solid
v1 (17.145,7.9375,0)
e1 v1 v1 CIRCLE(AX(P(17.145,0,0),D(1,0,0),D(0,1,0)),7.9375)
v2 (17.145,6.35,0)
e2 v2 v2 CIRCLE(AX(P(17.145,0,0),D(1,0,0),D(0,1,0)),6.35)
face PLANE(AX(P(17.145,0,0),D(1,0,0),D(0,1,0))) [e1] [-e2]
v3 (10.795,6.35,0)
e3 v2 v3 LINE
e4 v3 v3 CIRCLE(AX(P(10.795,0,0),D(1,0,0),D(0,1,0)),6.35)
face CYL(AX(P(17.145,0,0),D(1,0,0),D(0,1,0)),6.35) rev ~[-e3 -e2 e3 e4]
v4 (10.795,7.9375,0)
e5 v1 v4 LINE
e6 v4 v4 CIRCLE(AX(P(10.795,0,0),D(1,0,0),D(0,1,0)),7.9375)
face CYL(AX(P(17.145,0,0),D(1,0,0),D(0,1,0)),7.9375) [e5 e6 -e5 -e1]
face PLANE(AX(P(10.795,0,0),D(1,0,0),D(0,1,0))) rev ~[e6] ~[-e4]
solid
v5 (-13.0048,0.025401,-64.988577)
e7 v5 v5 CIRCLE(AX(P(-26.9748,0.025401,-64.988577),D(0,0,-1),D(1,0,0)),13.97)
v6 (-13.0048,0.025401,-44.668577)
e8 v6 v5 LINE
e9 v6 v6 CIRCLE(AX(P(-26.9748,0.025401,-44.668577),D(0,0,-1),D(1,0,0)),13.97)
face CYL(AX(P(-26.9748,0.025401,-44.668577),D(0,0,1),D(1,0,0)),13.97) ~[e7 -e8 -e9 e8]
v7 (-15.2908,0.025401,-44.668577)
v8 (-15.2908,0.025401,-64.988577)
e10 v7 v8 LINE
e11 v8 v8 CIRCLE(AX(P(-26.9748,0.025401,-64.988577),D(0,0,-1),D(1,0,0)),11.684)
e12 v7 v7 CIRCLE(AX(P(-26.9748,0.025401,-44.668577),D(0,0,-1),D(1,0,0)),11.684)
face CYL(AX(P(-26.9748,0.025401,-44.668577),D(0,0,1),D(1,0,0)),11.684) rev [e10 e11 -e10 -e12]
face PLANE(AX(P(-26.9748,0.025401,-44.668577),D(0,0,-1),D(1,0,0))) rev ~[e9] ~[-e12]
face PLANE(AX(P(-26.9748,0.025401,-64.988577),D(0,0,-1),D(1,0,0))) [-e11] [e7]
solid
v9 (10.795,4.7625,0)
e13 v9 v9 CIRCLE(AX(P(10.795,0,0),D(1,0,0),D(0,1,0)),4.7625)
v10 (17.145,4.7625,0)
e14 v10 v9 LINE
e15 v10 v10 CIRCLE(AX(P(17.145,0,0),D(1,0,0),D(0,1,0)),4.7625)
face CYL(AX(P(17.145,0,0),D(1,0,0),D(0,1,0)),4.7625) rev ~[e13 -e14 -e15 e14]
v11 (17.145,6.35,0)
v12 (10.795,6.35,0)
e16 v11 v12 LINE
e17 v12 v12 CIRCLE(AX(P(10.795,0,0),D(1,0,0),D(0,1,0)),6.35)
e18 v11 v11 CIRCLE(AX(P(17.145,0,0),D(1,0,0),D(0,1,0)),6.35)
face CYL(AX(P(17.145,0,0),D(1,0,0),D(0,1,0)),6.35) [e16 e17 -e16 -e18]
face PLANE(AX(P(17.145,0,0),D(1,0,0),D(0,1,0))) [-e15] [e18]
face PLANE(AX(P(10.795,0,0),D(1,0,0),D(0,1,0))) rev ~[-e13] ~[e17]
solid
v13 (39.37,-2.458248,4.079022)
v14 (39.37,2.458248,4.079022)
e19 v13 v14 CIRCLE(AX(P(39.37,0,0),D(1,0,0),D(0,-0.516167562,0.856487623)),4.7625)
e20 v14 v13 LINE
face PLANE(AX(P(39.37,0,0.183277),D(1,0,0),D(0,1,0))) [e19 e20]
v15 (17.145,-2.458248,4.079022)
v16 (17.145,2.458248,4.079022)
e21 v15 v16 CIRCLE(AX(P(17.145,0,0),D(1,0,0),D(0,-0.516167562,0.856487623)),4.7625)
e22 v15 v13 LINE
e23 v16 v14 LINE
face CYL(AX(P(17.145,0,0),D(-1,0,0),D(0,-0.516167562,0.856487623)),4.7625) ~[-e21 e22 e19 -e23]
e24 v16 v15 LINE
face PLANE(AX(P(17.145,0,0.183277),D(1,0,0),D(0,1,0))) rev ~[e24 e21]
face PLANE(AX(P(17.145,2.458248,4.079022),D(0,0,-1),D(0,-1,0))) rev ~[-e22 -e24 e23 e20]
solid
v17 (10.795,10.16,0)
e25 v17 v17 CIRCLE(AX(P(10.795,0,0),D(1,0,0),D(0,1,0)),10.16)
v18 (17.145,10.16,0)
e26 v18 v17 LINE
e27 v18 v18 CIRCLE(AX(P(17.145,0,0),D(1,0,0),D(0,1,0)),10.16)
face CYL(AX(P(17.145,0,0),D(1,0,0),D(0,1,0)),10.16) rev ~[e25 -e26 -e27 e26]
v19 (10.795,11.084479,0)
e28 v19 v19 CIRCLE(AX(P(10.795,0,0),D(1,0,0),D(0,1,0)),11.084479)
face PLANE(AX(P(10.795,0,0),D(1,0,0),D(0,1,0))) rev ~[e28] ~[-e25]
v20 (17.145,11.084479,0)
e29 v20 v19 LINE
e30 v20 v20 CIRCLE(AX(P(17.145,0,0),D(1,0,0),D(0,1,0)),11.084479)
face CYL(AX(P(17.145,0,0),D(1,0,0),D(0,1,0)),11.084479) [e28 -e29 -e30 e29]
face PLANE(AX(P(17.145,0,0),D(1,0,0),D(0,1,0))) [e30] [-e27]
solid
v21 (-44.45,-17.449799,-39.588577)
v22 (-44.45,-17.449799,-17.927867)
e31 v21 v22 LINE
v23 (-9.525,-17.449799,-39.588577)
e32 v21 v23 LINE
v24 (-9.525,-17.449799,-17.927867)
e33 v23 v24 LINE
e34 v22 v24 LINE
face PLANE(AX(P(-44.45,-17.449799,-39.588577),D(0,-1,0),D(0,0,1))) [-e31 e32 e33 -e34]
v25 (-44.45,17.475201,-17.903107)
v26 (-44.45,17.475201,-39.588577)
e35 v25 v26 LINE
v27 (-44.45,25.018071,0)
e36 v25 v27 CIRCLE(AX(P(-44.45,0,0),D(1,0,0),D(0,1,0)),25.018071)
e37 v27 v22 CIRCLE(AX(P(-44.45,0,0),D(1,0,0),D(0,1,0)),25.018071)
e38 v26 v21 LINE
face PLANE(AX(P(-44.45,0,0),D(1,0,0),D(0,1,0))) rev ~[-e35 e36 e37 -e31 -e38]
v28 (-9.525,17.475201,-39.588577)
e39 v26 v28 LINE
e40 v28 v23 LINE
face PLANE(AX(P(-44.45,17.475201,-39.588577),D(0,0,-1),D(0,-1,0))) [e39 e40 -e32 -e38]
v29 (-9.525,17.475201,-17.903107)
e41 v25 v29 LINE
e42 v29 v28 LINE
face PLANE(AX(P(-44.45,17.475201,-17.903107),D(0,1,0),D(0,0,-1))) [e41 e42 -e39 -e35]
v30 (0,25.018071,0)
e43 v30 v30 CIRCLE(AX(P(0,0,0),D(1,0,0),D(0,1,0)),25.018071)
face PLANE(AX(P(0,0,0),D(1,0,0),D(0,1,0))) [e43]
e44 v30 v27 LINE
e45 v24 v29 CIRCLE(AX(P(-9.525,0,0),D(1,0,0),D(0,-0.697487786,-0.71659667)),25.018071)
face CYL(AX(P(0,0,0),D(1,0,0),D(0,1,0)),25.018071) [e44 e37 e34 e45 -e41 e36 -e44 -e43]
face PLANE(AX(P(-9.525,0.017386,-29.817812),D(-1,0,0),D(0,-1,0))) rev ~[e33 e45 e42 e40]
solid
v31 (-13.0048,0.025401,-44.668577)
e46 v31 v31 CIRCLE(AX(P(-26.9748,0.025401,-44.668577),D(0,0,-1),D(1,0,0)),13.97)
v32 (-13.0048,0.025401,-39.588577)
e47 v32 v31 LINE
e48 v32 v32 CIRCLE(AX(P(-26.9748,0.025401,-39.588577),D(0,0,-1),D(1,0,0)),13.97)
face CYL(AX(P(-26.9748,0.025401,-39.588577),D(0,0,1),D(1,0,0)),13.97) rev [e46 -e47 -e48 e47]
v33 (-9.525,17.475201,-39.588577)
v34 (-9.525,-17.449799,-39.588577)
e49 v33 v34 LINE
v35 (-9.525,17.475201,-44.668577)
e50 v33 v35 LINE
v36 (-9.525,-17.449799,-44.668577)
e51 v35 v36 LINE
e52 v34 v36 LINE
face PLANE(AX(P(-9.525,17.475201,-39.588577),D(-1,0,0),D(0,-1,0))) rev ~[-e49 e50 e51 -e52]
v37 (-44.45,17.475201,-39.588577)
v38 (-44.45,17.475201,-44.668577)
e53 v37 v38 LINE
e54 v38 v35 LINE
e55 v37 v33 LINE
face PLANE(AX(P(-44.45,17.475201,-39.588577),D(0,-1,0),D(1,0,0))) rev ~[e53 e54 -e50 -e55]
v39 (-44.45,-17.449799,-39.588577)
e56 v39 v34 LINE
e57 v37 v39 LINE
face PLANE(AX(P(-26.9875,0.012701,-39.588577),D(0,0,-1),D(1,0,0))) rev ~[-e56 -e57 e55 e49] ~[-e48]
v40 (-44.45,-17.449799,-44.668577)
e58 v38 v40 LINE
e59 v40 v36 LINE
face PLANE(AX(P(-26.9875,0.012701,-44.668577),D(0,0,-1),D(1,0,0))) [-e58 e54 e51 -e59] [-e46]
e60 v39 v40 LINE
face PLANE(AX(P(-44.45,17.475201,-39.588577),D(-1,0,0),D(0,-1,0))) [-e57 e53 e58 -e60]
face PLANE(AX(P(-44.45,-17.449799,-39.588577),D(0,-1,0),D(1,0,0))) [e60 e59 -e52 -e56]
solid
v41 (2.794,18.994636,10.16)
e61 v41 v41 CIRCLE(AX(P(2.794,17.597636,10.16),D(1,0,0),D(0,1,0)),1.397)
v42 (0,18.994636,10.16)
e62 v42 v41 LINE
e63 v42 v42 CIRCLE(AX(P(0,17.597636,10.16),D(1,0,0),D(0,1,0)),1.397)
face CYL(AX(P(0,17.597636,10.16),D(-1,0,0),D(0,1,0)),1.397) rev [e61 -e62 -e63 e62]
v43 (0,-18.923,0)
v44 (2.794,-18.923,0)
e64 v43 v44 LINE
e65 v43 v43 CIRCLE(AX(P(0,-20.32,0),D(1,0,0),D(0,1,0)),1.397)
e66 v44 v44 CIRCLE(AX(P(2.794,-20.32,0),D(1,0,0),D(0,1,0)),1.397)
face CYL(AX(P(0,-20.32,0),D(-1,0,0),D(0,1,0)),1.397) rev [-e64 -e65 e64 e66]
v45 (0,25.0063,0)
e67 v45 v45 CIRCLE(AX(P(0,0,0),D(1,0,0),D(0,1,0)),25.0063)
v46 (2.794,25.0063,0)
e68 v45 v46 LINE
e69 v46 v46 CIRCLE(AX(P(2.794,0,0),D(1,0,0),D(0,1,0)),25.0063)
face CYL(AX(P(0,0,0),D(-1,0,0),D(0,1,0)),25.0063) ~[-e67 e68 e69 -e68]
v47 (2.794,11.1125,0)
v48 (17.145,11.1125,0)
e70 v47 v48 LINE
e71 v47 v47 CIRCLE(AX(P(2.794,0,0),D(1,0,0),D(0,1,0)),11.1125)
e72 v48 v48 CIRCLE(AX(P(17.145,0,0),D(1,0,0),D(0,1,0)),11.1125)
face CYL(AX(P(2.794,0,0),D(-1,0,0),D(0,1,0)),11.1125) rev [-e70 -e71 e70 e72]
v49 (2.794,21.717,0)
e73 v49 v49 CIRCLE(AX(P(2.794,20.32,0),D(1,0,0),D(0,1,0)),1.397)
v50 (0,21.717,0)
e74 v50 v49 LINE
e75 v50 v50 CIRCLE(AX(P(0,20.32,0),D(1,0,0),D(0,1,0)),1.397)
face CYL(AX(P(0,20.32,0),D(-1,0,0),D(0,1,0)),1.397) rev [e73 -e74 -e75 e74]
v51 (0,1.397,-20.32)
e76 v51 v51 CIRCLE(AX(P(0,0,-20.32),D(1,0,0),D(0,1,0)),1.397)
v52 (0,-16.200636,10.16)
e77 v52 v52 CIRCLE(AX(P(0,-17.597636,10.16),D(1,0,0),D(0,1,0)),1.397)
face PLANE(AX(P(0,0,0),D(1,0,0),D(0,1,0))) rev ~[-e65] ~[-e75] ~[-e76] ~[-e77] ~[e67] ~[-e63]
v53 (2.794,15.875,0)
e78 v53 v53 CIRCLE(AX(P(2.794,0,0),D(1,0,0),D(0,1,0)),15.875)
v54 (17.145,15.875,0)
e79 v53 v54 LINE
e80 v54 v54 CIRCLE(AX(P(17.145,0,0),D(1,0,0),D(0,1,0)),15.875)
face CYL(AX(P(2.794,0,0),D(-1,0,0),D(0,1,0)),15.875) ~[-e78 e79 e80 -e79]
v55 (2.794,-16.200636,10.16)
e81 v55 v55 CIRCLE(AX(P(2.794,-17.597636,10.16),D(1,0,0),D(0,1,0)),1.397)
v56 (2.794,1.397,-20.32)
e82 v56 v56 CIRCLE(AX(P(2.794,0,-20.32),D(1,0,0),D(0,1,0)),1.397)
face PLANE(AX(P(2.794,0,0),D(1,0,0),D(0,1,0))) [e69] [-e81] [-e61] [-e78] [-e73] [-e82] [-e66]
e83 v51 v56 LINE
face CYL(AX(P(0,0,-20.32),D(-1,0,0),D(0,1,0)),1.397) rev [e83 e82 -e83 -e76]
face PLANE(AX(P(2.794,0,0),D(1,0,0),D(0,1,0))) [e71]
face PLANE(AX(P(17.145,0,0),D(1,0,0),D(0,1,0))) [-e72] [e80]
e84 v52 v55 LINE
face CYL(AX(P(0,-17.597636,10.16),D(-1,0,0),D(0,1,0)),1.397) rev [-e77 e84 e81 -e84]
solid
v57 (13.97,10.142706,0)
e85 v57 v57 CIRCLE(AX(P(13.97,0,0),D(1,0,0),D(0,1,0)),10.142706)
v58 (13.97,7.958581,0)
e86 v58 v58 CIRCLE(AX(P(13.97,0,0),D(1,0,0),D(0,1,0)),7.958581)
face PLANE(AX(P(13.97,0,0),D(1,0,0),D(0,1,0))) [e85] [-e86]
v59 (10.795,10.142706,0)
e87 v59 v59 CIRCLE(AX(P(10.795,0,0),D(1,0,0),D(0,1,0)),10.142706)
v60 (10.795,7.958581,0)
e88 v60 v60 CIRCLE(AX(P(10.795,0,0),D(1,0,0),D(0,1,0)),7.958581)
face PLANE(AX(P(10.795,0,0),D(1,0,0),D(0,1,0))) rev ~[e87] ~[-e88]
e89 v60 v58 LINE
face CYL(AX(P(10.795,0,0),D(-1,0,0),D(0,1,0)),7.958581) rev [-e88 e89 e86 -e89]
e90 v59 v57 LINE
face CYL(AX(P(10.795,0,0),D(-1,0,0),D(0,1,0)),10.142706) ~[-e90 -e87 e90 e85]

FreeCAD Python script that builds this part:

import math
import FreeCAD as App
import Part
import Sketcher
Q = App.Units.Quantity

doc = App.newDocument("Part")
params = doc.addObject("Spreadsheet::Sheet", "Params")
for row, (alias, value) in enumerate([
    ("sketch1_diameter", "0.11 in"),
    ("sketch1_diameter2", "1.969 in"),
    ("pad1_length", "0.11 in"),
    ("sketch2_diameter", "1.25 in"),
    ("sketch2_diameter2", "0.875 in"),
    ("pad2_length", "0.565 in"),
    ("sketch3_radius", "0.1875 in"),
    ("pad3_length", "0.875 in"),
    ("pad4_length", "1.75 in"),
    ("sketch5_width", "1.375 in"),
    ("pad5_length", "1.375 in"),
    ("sketch6_diameter", "0.5 in"),
    ("sketch6_diameter2", "0.375 in"),
    ("pad6_length", "0.25 in"),
    ("sketch7_diameter", "0.5 in"),
    ("sketch7_diameter2", "0.625 in"),
    ("pad7_length", "0.25 in"),
    ("sketch8_diameter", "0.8 in"),
    ("pad8_length", "0.25 in"),
    ("pad9_length", "0.125 in"),
    ("sketch10_diameter", "1.1 in"),
    ("sketch10_width", "1.375 in"),
    ("pad10_length", "0.2 in"),
    ("sketch11_diameter", "1.1 in"),
    ("sketch11_diameter2", "0.92 in"),
    ("pad11_length", "0.8 in"),
], start=1):
    params.set(f"A{row}", alias)
    params.set(f"B{row}", "=" + value)
    params.setAlias(f"B{row}", alias)

body = doc.addObject("PartDesign::Body", "Body")

# Sketch on YZ plane
sketch1 = body.newObject("Sketcher::SketchObject", "Sketch")
sketch1.AttachmentSupport = (doc.getObject("YZ_Plane"), [""])
sketch1.MapMode = "FlatFace"
sketch1.addGeometry([
    Part.Circle(App.Vector(0, 0, 0), App.Vector(0, 0, 1), 25),  # 0
    Part.Circle(App.Vector(0, -20.3, 0), App.Vector(0, 0, 1), 1.4),  # 1
    Part.Circle(App.Vector(-20.3, 0, 0), App.Vector(0, 0, 1), 1.4),  # 2
    Part.Circle(App.Vector(-17.6, 10.2, 0), App.Vector(0, 0, 1), 1.4),  # 3
    Part.Circle(App.Vector(20.3, 0, 0), App.Vector(0, 0, 1), 1.4),  # 4
    Part.Circle(App.Vector(17.6, 10.2, 0), App.Vector(0, 0, 1), 1.4),  # 5
], False)
sketch1.addConstraint([
    Sketcher.Constraint("Coincident", 0, 3, -1, 1),
    Sketcher.Constraint("Equal", 1, 2),
    Sketcher.Constraint("Equal", 2, 3),
    Sketcher.Constraint("Equal", 3, 4),
    Sketcher.Constraint("Equal", 4, 5),
    Sketcher.Constraint("Symmetric", 2, 3, 4, 3, -1, 1),
    Sketcher.Constraint("Symmetric", 3, 3, 5, 3, -2),
    Sketcher.Constraint("PointOnObject", 1, 3, -2),
    Sketcher.Constraint("PointOnObject", 2, 3, -1),
    Sketcher.Constraint("Diameter", 1, Q("0.11 in")),
    Sketcher.Constraint("Diameter", 0, Q("1.969 in")),
    Sketcher.Constraint("DistanceY", 1, 3, -1, 1, Q("0.8 in")),
    Sketcher.Constraint("DistanceX", 2, 3, -1, 1, Q("0.8 in")),
    Sketcher.Constraint("DistanceY", -1, 1, 3, 3, Q("0.4 in")),
    Sketcher.Constraint("DistanceX", 3, 3, -1, 1, Q("17.597636 mm")),
])
sketch1.setExpression("Constraints[9]", "Params.sketch1_diameter")
sketch1.setExpression("Constraints[10]", "Params.sketch1_diameter2")
pad1 = body.newObject("PartDesign::Pad", "Pad")
pad1.Profile = sketch1
pad1.setExpression("Length", "Params.pad1_length")

# Sketch on YZ plane
sketch2 = body.newObject("Sketcher::SketchObject", "Sketch001")
sketch2.AttachmentSupport = (doc.getObject("YZ_Plane"), [""])
sketch2.MapMode = "FlatFace"
sketch2.AttachmentOffset = App.Placement(App.Vector(0, 0, 0.11 * 25.4), App.Rotation())
sketch2.addGeometry([
    Part.Circle(App.Vector(0, 0, 0), App.Vector(0, 0, 1), 16),
    Part.Circle(App.Vector(0, 0, 0), App.Vector(0, 0, 1), 11),
], False)
sketch2.addConstraint([
    Sketcher.Constraint("Coincident", 0, 3, -1, 1),
    Sketcher.Constraint("Coincident", 1, 3, -1, 1),
    Sketcher.Constraint("Diameter", 0, Q("1.25 in")),
    Sketcher.Constraint("Diameter", 1, Q("0.875 in")),
])
sketch2.setExpression("Constraints[2]", "Params.sketch2_diameter")
sketch2.setExpression("Constraints[3]", "Params.sketch2_diameter2")
pad2 = body.newObject("PartDesign::Pad", "Pad001")
pad2.Profile = sketch2
pad2.setExpression("Length", "Params.pad2_length")
body2 = doc.addObject("PartDesign::Body", "Body001")

# Sketch on YZ plane
sketch3 = body2.newObject("Sketcher::SketchObject", "Sketch002")
sketch3.AttachmentSupport = (doc.getObject("YZ_Plane001"), [""])
sketch3.MapMode = "FlatFace"
sketch3.AttachmentOffset = App.Placement(App.Vector(0, 0, 0.675 * 25.4), App.Rotation())
sketch3.addGeometry([
    Part.LineSegment(App.Vector(2.5, 4.1, 0), App.Vector(-2.5, 4.1, 0)),
    Part.ArcOfCircle(Part.Circle(App.Vector(0, 0, 0), App.Vector(0, 0, 1), 4.8), math.radians(121), math.radians(419)),
], False)
sketch3.addConstraint([
    Sketcher.Constraint("Coincident", 0, 1, 1, 2),
    Sketcher.Constraint("Coincident", 1, 1, 0, 2),
    Sketcher.Constraint("Horizontal", 0),
    Sketcher.Constraint("Coincident", 1, 3, -1, 1),
    Sketcher.Constraint("Radius", 1, Q("0.1875 in")),
    Sketcher.Constraint("DistanceX", 0, 2, 0, 1, Q("4.916496 mm")),
])
sketch3.setExpression("Constraints[4]", "Params.sketch3_radius")
pad3 = body2.newObject("PartDesign::Pad", "Pad002")
pad3.Profile = sketch3
pad3.setExpression("Length", "Params.pad3_length")
body3 = doc.addObject("PartDesign::Body", "Body002")

# Sketch on YZ plane
sketch4 = body3.newObject("Sketcher::SketchObject", "Sketch003")
sketch4.AttachmentSupport = (doc.getObject("YZ_Plane002"), [""])
sketch4.MapMode = "FlatFace"
sketch4.addGeometry(Part.Circle(App.Vector(0, 0, 0), App.Vector(0, 0, 1), 25), False)
sketch4.addConstraint([
    Sketcher.Constraint("Coincident", 0, 3, -1, 1),
    Sketcher.Constraint("Diameter", 0, Q("50.036143 mm")),
])
pad4 = body3.newObject("PartDesign::Pad", "Pad003")
pad4.Profile = sketch4
pad4.setExpression("Length", "Params.pad4_length")
pad4.Reversed = True

# Sketch on YZ plane
sketch5 = body3.newObject("Sketcher::SketchObject", "Sketch004")
sketch5.AttachmentSupport = (doc.getObject("YZ_Plane002"), [""])
sketch5.MapMode = "FlatFace"
sketch5.AttachmentOffset = App.Placement(App.Vector(0, 0, -1.75 * 25.4), App.Rotation())
sketch5.addGeometry([
    Part.LineSegment(App.Vector(17, -40, 0), App.Vector(-17, -40, 0)),
    Part.LineSegment(App.Vector(-17, -40, 0), App.Vector(-17, -18, 0)),
    Part.ArcOfCircle(Part.Circle(App.Vector(0, 0, 0), App.Vector(0, 0, 1), 25), math.radians(-134), math.radians(-46)),
    Part.LineSegment(App.Vector(17, -18, 0), App.Vector(17, -40, 0)),
], False)
sketch5.addConstraint([
    Sketcher.Constraint("Coincident", 0, 2, 1, 1),
    Sketcher.Constraint("Coincident", 1, 2, 2, 1),
    Sketcher.Constraint("Coincident", 2, 2, 3, 1),
    Sketcher.Constraint("Coincident", 3, 2, 0, 1),
    Sketcher.Constraint("Horizontal", 0),
    Sketcher.Constraint("Vertical", 1),
    Sketcher.Constraint("Vertical", 3),
    Sketcher.Constraint("Coincident", 2, 3, -1, 1),
    Sketcher.Constraint("DistanceX", 0, 2, 0, 1, Q("1.375 in")),
    Sketcher.Constraint("DistanceX", 0, 2, -1, 1, Q("0.687 in")),
    Sketcher.Constraint("Radius", 2, Q("25.018071 mm")),
    Sketcher.Constraint("DistanceY", 1, 1, 1, 2, Q("21.66071 mm")),
])
sketch5.setExpression("Constraints[8]", "Params.sketch5_width")
pad5 = body3.newObject("PartDesign::Pad", "Pad004")
pad5.Profile = sketch5
pad5.setExpression("Length", "Params.pad5_length")
body4 = doc.addObject("PartDesign::Body", "Body003")

# Sketch on YZ plane
sketch6 = body4.newObject("Sketcher::SketchObject", "Sketch005")
sketch6.AttachmentSupport = (doc.getObject("YZ_Plane003"), [""])
sketch6.MapMode = "FlatFace"
sketch6.AttachmentOffset = App.Placement(App.Vector(0, 0, 0.675 * 25.4), App.Rotation())
sketch6.addGeometry([
    Part.Circle(App.Vector(0, 0, 0), App.Vector(0, 0, 1), 6.3),
    Part.Circle(App.Vector(0, 0, 0), App.Vector(0, 0, 1), 4.8),
], False)
sketch6.addConstraint([
    Sketcher.Constraint("Coincident", 0, 3, -1, 1),
    Sketcher.Constraint("Coincident", 1, 3, -1, 1),
    Sketcher.Constraint("Diameter", 0, Q("0.5 in")),
    Sketcher.Constraint("Diameter", 1, Q("0.375 in")),
])
sketch6.setExpression("Constraints[2]", "Params.sketch6_diameter")
sketch6.setExpression("Constraints[3]", "Params.sketch6_diameter2")
pad6 = body4.newObject("PartDesign::Pad", "Pad005")
pad6.Profile = sketch6
pad6.setExpression("Length", "Params.pad6_length")
pad6.Reversed = True
body5 = doc.addObject("PartDesign::Body", "Body004")

# Sketch on YZ plane
sketch7 = body5.newObject("Sketcher::SketchObject", "Sketch006")
sketch7.AttachmentSupport = (doc.getObject("YZ_Plane004"), [""])
sketch7.MapMode = "FlatFace"
sketch7.AttachmentOffset = App.Placement(App.Vector(0, 0, 0.675 * 25.4), App.Rotation())
sketch7.addGeometry([
    Part.Circle(App.Vector(0, 0, 0), App.Vector(0, 0, 1), 8),
    Part.Circle(App.Vector(0, 0, 0), App.Vector(0, 0, 1), 6),
], False)
sketch7.addConstraint([
    Sketcher.Constraint("Coincident", 0, 3, -1, 1),
    Sketcher.Constraint("Coincident", 1, 3, -1, 1),
    Sketcher.Constraint("Diameter", 1, Q("0.5 in")),
    Sketcher.Constraint("Diameter", 0, Q("0.625 in")),
])
sketch7.setExpression("Constraints[2]", "Params.sketch7_diameter")
sketch7.setExpression("Constraints[3]", "Params.sketch7_diameter2")
pad7 = body5.newObject("PartDesign::Pad", "Pad006")
pad7.Profile = sketch7
pad7.setExpression("Length", "Params.pad7_length")
pad7.Reversed = True
body6 = doc.addObject("PartDesign::Body", "Body005")

# Sketch on YZ plane
sketch8 = body6.newObject("Sketcher::SketchObject", "Sketch007")
sketch8.AttachmentSupport = (doc.getObject("YZ_Plane005"), [""])
sketch8.MapMode = "FlatFace"
sketch8.AttachmentOffset = App.Placement(App.Vector(0, 0, 0.675 * 25.4), App.Rotation())
sketch8.addGeometry([
    Part.Circle(App.Vector(0, 0, 0), App.Vector(0, 0, 1), 11),
    Part.Circle(App.Vector(0, 0, 0), App.Vector(0, 0, 1), 10),
], False)
sketch8.addConstraint([
    Sketcher.Constraint("Coincident", 0, 3, -1, 1),
    Sketcher.Constraint("Coincident", 1, 3, -1, 1),
    Sketcher.Constraint("Diameter", 1, Q("0.8 in")),
    Sketcher.Constraint("Diameter", 0, Q("22.168959 mm")),
])
sketch8.setExpression("Constraints[2]", "Params.sketch8_diameter")
pad8 = body6.newObject("PartDesign::Pad", "Pad007")
pad8.Profile = sketch8
pad8.setExpression("Length", "Params.pad8_length")
pad8.Reversed = True
body7 = doc.addObject("PartDesign::Body", "Body006")

# Sketch on YZ plane
sketch9 = body7.newObject("Sketcher::SketchObject", "Sketch008")
sketch9.AttachmentSupport = (doc.getObject("YZ_Plane006"), [""])
sketch9.MapMode = "FlatFace"
sketch9.AttachmentOffset = App.Placement(App.Vector(0, 0, 0.675 * 25.4), App.Rotation())
sketch9.addGeometry([
    Part.Circle(App.Vector(0, 0, 0), App.Vector(0, 0, 1), 10),
    Part.Circle(App.Vector(0, 0, 0), App.Vector(0, 0, 1), 8),
], False)
sketch9.addConstraint([
    Sketcher.Constraint("Coincident", 0, 3, -1, 1),
    Sketcher.Constraint("Coincident", 1, 3, -1, 1),
    Sketcher.Constraint("Diameter", 1, Q("15.917161 mm")),
    Sketcher.Constraint("Diameter", 0, Q("20.285412 mm")),
])
pad9 = body7.newObject("PartDesign::Pad", "Pad008")
pad9.Profile = sketch9
pad9.setExpression("Length", "Params.pad9_length")
body8 = doc.addObject("PartDesign::Body", "Body007")
doc.recompute()

body7.Placement = App.Placement(App.Vector(-6.35, 0, 0), App.Rotation(App.Vector(0, 0, 1), 0))
boolean = body8.newObject("PartDesign::Boolean", "Boolean")
boolean.Type = "Fuse"
boolean.addObjects([body7])
body9 = doc.addObject("PartDesign::Body", "Body008")

# Sketch on XY plane
sketch10 = body9.newObject("Sketcher::SketchObject", "Sketch009")
sketch10.AttachmentSupport = (doc.getObject("XY_Plane008"), [""])
sketch10.MapMode = "FlatFace"
sketch10.AttachmentOffset = App.Placement(App.Vector(0, 0, -39.588577), App.Rotation())
sketch10.addGeometry([
    Part.LineSegment(App.Vector(-44, -17, 0), App.Vector(-44, 17, 0)),  # 0
    Part.LineSegment(App.Vector(-44, 17, 0), App.Vector(-10, 17, 0)),  # 1
    Part.LineSegment(App.Vector(-10, 17, 0), App.Vector(-10, -17, 0)),  # 2
    Part.LineSegment(App.Vector(-10, -17, 0), App.Vector(-44, -17, 0)),  # 3
    Part.Circle(App.Vector(-27, 0, 0), App.Vector(0, 0, 1), 14),  # 4
], False)
sketch10.addConstraint([
    Sketcher.Constraint("Coincident", 0, 2, 1, 1),
    Sketcher.Constraint("Coincident", 1, 2, 2, 1),
    Sketcher.Constraint("Coincident", 2, 2, 3, 1),
    Sketcher.Constraint("Coincident", 3, 2, 0, 1),
    Sketcher.Constraint("Vertical", 0),
    Sketcher.Constraint("Horizontal", 1),
    Sketcher.Constraint("Vertical", 2),
    Sketcher.Constraint("Horizontal", 3),
    Sketcher.Constraint("Equal", 3, 0),
    Sketcher.Constraint("Diameter", 4, Q("1.1 in")),
    Sketcher.Constraint("DistanceX", 1, 1, 1, 2, Q("1.375 in")),
    Sketcher.Constraint("DistanceX", 0, 2, -1, 1, Q("1.75 in")),
    Sketcher.Constraint("DistanceX", 4, 3, -1, 1, Q("1.062 in")),
    Sketcher.Constraint("DistanceY", -1, 1, 4, 3, Q("0.001 in")),
    Sketcher.Constraint("DistanceY", -1, 1, 0, 2, Q("0.688 in")),
])
sketch10.setExpression("Constraints[9]", "Params.sketch10_diameter")
sketch10.setExpression("Constraints[10]", "Params.sketch10_width")
pad10 = body9.newObject("PartDesign::Pad", "Pad009")
pad10.Profile = sketch10
pad10.setExpression("Length", "Params.pad10_length")
pad10.Reversed = True
body10 = doc.addObject("PartDesign::Body", "Body009")

# Sketch on XY plane
sketch11 = body10.newObject("Sketcher::SketchObject", "Sketch010")
sketch11.AttachmentSupport = (doc.getObject("XY_Plane009"), [""])
sketch11.MapMode = "FlatFace"
sketch11.AttachmentOffset = App.Placement(App.Vector(0, 0, -44.668577), App.Rotation())
sketch11.addGeometry([
    Part.Circle(App.Vector(-27, 0, 0), App.Vector(0, 0, 1), 14),
    Part.Circle(App.Vector(-27, 0, 0), App.Vector(0, 0, 1), 12),
], False)
sketch11.addConstraint([
    Sketcher.Constraint("Coincident", 1, 3, 0, 3),
    Sketcher.Constraint("Diameter", 0, Q("1.1 in")),
    Sketcher.Constraint("Diameter", 1, Q("0.92 in")),
    Sketcher.Constraint("DistanceX", 0, 3, -1, 1, Q("1.062 in")),
    Sketcher.Constraint("DistanceY", -1, 1, 0, 3, Q("0.001 in")),
])
sketch11.setExpression("Constraints[1]", "Params.sketch11_diameter")
sketch11.setExpression("Constraints[2]", "Params.sketch11_diameter2")
pad11 = body10.newObject("PartDesign::Pad", "Pad010")
pad11.Profile = sketch11
pad11.setExpression("Length", "Params.pad11_length")
pad11.Reversed = True

doc.recompute()
